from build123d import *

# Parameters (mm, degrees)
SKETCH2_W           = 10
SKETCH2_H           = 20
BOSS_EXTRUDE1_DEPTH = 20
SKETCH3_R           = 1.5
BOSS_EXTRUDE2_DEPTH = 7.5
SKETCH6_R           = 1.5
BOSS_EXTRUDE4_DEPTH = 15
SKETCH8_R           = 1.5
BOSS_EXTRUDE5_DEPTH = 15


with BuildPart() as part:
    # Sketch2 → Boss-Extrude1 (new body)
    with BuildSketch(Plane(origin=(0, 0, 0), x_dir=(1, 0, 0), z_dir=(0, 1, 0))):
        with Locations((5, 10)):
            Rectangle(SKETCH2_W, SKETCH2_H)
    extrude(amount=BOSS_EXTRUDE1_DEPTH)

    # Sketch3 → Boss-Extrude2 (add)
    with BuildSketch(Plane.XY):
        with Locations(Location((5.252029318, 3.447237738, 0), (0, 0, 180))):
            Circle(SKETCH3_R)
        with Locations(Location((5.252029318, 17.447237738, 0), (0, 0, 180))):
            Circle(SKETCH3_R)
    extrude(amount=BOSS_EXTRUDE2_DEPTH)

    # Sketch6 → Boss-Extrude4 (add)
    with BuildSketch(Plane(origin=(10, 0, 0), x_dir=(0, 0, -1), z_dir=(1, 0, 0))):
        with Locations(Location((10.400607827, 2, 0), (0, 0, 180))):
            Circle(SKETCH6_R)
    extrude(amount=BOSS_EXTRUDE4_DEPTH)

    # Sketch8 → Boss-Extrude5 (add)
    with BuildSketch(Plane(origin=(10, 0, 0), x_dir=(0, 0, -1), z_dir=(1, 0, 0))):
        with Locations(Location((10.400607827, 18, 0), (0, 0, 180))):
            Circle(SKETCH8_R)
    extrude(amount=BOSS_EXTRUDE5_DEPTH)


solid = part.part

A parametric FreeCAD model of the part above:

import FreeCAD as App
import Part
import Sketcher

V = App.Vector
Q = App.Units.Quantity

doc = App.newDocument("Part")
body = doc.addObject("PartDesign::Body", "Body")

# Sketch on XZ plane
sketch1 = body.newObject("Sketcher::SketchObject", "Sketch")
sketch1.AttachmentSupport = (doc.getObject("XZ_Plane"), [""])
sketch1.MapMode = "FlatFace"
sketch1.addGeometry(Part.LineSegment(V(0, -20, 0), V(0, 0, 0)), False)
sketch1.addGeometry(Part.LineSegment(V(0, 0, 0), V(10, 0, 0)), False)
sketch1.addGeometry(Part.LineSegment(V(10, 0, 0), V(10, -20, 0)), False)
sketch1.addGeometry(Part.LineSegment(V(10, -20, 0), V(0, -20, 0)), False)
sketch1.addConstraint(Sketcher.Constraint("Coincident", 0, 2, 1, 1))
sketch1.addConstraint(Sketcher.Constraint("Coincident", 1, 2, 2, 1))
sketch1.addConstraint(Sketcher.Constraint("Coincident", 2, 2, 3, 1))
sketch1.addConstraint(Sketcher.Constraint("Coincident", 3, 2, 0, 1))
sketch1.addConstraint(Sketcher.Constraint("Vertical", 0))
sketch1.addConstraint(Sketcher.Constraint("Horizontal", 1))
sketch1.addConstraint(Sketcher.Constraint("Vertical", 2))
sketch1.addConstraint(Sketcher.Constraint("Horizontal", 3))
sketch1.addConstraint(Sketcher.Constraint("Coincident", 0, 2, -1, 1))
sketch1.addConstraint(Sketcher.Constraint("DistanceX", 1, 1, 1, 2, Q("10 mm")))
sketch1.addConstraint(Sketcher.Constraint("DistanceY", 0, 1, 0, 2, Q("20 mm")))
pad1 = body.newObject("PartDesign::Pad", "Pad")
pad1.Profile = sketch1
pad1.Length = 20
pad1.Reversed = True

# Sketch on XY plane
sketch2 = body.newObject("Sketcher::SketchObject", "Sketch001")
sketch2.AttachmentSupport = (doc.getObject("XY_Plane"), [""])
sketch2.MapMode = "FlatFace"
sketch2.addGeometry(Part.Circle(V(5.3, 3.4, 0), V(0, 0, 1), 1.5), False)
sketch2.addGeometry(Part.Circle(V(5.3, 17.4, 0), V(0, 0, 1), 1.5), False)
sketch2.addConstraint(Sketcher.Constraint("Equal", 0, 1))
sketch2.addConstraint(Sketcher.Constraint("Vertical", 0, 3, 1, 3))
sketch2.addConstraint(Sketcher.Constraint("Diameter", 0, Q("3 mm")))
sketch2.addConstraint(Sketcher.Constraint("DistanceY", 0, 3, 1, 3, Q("14 mm")))
sketch2.addConstraint(Sketcher.Constraint("DistanceX", -1, 1, 0, 3, Q("5.252029 mm")))
sketch2.addConstraint(Sketcher.Constraint("DistanceY", -1, 1, 0, 3, Q("3.447238 mm")))
pad2 = body.newObject("PartDesign::Pad", "Pad001")
pad2.Profile = sketch2
pad2.Length = 7.5

# Sketch on YZ plane
sketch3 = body.newObject("Sketcher::SketchObject", "Sketch002")
sketch3.AttachmentSupport = (doc.getObject("YZ_Plane"), [""])
sketch3.MapMode = "FlatFace"
sketch3.AttachmentOffset = App.Placement(V(0, 0, 10), App.Rotation())
sketch3.addGeometry(Part.Circle(V(2, -10.4, 0), V(0, 0, 1), 1.5), False)
sketch3.addConstraint(Sketcher.Constraint("Diameter", 0, Q("3 mm")))
sketch3.addConstraint(Sketcher.Constraint("DistanceX", -1, 1, 0, 3, Q("2 mm")))
sketch3.addConstraint(Sketcher.Constraint("DistanceY", 0, 3, -1, 1, Q("10.400608 mm")))
pad3 = body.newObject("PartDesign::Pad", "Pad002")
pad3.Profile = sketch3
pad3.Length = 15

# Sketch on YZ plane
sketch4 = body.newObject("Sketcher::SketchObject", "Sketch003")
sketch4.AttachmentSupport = (doc.getObject("YZ_Plane"), [""])
sketch4.MapMode = "FlatFace"
sketch4.AttachmentOffset = App.Placement(V(0, 0, 10), App.Rotation())
sketch4.addGeometry(Part.Circle(V(18, -10.4, 0), V(0, 0, 1), 1.5), False)
sketch4.addConstraint(Sketcher.Constraint("Diameter", 0, Q("3 mm")))
sketch4.addConstraint(Sketcher.Constraint("DistanceX", -1, 1, 0, 3, Q("18 mm")))
sketch4.addConstraint(Sketcher.Constraint("DistanceY", 0, 3, -1, 1, Q("10.400608 mm")))
pad4 = body.newObject("PartDesign::Pad", "Pad003")
pad4.Profile = sketch4
pad4.Length = 15

doc.recompute()
